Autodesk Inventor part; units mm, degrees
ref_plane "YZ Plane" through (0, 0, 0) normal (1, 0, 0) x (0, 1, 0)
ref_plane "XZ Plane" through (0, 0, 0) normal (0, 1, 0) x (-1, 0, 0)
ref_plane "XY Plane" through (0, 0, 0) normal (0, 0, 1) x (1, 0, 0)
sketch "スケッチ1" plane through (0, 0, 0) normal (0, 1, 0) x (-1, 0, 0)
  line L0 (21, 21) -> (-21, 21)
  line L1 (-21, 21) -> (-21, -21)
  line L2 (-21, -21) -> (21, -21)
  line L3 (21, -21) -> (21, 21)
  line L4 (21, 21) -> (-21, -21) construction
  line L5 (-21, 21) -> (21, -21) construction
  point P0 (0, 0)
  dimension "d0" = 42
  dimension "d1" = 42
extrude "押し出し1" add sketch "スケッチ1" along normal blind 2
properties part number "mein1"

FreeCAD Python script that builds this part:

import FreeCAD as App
import Part
import Sketcher
from FreeCAD import Vector
Q = App.Units.Quantity

doc = App.newDocument("Part")
body = doc.addObject("PartDesign::Body", "Body")

sketch1 = body.newObject("Sketcher::SketchObject", "Sketch")
sketch1.AttachmentSupport = (doc.getObject("XZ_Plane"), [""])
sketch1.MapMode = "FlatFace"
sketch1.addGeometry([
    Part.LineSegment(Vector(-21, -21, 0), Vector(-21, 21, 0)),
    Part.LineSegment(Vector(-21, 21, 0), Vector(21, 21, 0)),
    Part.LineSegment(Vector(21, 21, 0), Vector(21, -21, 0)),
    Part.LineSegment(Vector(21, -21, 0), Vector(-21, -21, 0)),
], False)
sketch1.addConstraint([
    Sketcher.Constraint("Coincident", 0, 2, 1, 1),
    Sketcher.Constraint("Coincident", 1, 2, 2, 1),
    Sketcher.Constraint("Coincident", 2, 2, 3, 1),
    Sketcher.Constraint("Coincident", 3, 2, 0, 1),
    Sketcher.Constraint("Vertical", 0),
    Sketcher.Constraint("Horizontal", 1),
    Sketcher.Constraint("Vertical", 2),
    Sketcher.Constraint("Horizontal", 3),
    Sketcher.Constraint("Symmetric", 0, 2, 2, 2, -1, 1),
    Sketcher.Constraint("Equal", 3, 0),
    Sketcher.Constraint("DistanceX", 1, 1, 1, 2, Q("42 mm")),
])
pad1 = body.newObject("PartDesign::Pad", "Pad")
pad1.Profile = sketch1
pad1.Length = 2
pad1.Reversed = True

doc.recompute()
